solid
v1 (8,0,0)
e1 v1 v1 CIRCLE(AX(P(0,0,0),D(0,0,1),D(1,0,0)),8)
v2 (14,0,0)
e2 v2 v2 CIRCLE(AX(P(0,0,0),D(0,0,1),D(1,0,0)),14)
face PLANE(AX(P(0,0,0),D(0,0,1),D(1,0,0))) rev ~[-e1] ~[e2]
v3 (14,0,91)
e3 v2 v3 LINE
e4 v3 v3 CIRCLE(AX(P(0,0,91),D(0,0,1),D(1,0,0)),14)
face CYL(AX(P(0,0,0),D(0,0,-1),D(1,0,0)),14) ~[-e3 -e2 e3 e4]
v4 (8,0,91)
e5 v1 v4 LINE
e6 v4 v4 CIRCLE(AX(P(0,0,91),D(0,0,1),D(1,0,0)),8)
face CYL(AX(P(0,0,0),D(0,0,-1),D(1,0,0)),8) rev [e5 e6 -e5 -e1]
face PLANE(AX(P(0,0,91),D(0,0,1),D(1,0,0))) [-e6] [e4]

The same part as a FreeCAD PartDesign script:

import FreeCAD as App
import Part
import Sketcher

V = App.Vector

doc = App.newDocument("Part")
params = doc.addObject("Spreadsheet::Sheet", "Params")
for row, (alias, value) in enumerate([
    ("sketch1_diameter", "28 mm"),
    ("sketch1_diameter2", "16 mm"),
    ("pad1_length", "91 mm"),
], start=1):
    params.set(f"A{row}", alias)
    params.set(f"B{row}", "=" + value)
    params.setAlias(f"B{row}", alias)

body = doc.addObject("PartDesign::Body", "Body")

# Sketch on XY plane
sketch1 = body.newObject("Sketcher::SketchObject", "Sketch")
sketch1.AttachmentSupport = (doc.getObject("XY_Plane"), [""])
sketch1.MapMode = "FlatFace"
sketch1.addGeometry([
    Part.Circle(V(0, 0, 0), V(0, 0, 1), 14),
    Part.Circle(V(0, 0, 0), V(0, 0, 1), 8),
], False)
sketch1.addConstraint([
    Sketcher.Constraint("Coincident", 0, 3, -1, 1),
    Sketcher.Constraint("Coincident", 1, 3, -1, 1),
    Sketcher.Constraint("Diameter", 0, 28.0),
    Sketcher.Constraint("Diameter", 1, 16.0),
])
sketch1.setExpression("Constraints[2]", "Params.sketch1_diameter")
sketch1.setExpression("Constraints[3]", "Params.sketch1_diameter2")
pad1 = body.newObject("PartDesign::Pad", "Pad")
pad1.Profile = sketch1
pad1.setExpression("Length", "Params.pad1_length")

doc.recompute()
